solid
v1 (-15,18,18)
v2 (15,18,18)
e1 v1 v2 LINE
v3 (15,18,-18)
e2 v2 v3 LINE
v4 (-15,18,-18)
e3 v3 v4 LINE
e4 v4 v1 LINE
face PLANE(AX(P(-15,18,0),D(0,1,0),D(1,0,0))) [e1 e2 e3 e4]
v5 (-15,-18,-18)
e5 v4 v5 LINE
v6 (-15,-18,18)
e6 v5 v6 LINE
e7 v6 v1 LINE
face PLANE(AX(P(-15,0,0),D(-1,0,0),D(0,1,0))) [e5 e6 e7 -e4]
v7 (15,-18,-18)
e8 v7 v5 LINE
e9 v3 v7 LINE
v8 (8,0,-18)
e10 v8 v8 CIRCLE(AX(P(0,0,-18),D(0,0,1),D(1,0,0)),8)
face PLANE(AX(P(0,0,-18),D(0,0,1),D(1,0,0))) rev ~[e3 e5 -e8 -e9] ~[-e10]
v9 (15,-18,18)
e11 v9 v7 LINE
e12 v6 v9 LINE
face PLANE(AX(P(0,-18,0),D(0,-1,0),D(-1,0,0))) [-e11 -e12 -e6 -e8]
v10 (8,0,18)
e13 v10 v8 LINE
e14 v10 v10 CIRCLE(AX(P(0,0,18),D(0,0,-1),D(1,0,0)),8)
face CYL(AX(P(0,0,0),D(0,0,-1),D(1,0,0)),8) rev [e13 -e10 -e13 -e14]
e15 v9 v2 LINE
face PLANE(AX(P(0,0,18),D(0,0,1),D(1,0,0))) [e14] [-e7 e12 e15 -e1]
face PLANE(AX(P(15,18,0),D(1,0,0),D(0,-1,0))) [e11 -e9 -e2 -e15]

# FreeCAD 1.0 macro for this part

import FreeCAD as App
import Part
import Sketcher
from FreeCAD import Vector
Q = App.Units.Quantity

doc = App.newDocument("Part")
body = doc.addObject("PartDesign::Body", "Body")

# Sketch on XY plane
sketch1 = body.newObject("Sketcher::SketchObject", "Sketch")
sketch1.AttachmentSupport = (doc.getObject("XY_Plane"), [""])
sketch1.MapMode = "FlatFace"
sketch1.addGeometry([
    Part.LineSegment(Vector(-15, 18, 0), Vector(-15, -18, 0)),  # 0
    Part.LineSegment(Vector(-15, -18, 0), Vector(15, -18, 0)),  # 1
    Part.LineSegment(Vector(15, -18, 0), Vector(15, 18, 0)),  # 2
    Part.LineSegment(Vector(15, 18, 0), Vector(-15, 18, 0)),  # 3
    Part.Circle(Vector(0, 0, 0), Vector(0, 0, 1), 8),  # 4
], False)
sketch1.addConstraint([
    Sketcher.Constraint("Coincident", 0, 2, 1, 1),
    Sketcher.Constraint("Coincident", 1, 2, 2, 1),
    Sketcher.Constraint("Coincident", 2, 2, 3, 1),
    Sketcher.Constraint("Coincident", 3, 2, 0, 1),
    Sketcher.Constraint("Vertical", 0),
    Sketcher.Constraint("Horizontal", 1),
    Sketcher.Constraint("Vertical", 2),
    Sketcher.Constraint("Horizontal", 3),
    Sketcher.Constraint("Coincident", 4, 3, -1, 1),
    Sketcher.Constraint("Symmetric", 0, 2, 2, 2, -1, 1),
    Sketcher.Constraint("Diameter", 4, Q("16 mm")),
    Sketcher.Constraint("DistanceX", 1, 1, 1, 2, Q("30 mm")),
    Sketcher.Constraint("DistanceY", 0, 2, 0, 1, Q("36 mm")),
])
pad1 = body.newObject("PartDesign::Pad", "Pad")
pad1.Profile = sketch1
pad1.Length = 36
pad1.Midplane = True

doc.recompute()
